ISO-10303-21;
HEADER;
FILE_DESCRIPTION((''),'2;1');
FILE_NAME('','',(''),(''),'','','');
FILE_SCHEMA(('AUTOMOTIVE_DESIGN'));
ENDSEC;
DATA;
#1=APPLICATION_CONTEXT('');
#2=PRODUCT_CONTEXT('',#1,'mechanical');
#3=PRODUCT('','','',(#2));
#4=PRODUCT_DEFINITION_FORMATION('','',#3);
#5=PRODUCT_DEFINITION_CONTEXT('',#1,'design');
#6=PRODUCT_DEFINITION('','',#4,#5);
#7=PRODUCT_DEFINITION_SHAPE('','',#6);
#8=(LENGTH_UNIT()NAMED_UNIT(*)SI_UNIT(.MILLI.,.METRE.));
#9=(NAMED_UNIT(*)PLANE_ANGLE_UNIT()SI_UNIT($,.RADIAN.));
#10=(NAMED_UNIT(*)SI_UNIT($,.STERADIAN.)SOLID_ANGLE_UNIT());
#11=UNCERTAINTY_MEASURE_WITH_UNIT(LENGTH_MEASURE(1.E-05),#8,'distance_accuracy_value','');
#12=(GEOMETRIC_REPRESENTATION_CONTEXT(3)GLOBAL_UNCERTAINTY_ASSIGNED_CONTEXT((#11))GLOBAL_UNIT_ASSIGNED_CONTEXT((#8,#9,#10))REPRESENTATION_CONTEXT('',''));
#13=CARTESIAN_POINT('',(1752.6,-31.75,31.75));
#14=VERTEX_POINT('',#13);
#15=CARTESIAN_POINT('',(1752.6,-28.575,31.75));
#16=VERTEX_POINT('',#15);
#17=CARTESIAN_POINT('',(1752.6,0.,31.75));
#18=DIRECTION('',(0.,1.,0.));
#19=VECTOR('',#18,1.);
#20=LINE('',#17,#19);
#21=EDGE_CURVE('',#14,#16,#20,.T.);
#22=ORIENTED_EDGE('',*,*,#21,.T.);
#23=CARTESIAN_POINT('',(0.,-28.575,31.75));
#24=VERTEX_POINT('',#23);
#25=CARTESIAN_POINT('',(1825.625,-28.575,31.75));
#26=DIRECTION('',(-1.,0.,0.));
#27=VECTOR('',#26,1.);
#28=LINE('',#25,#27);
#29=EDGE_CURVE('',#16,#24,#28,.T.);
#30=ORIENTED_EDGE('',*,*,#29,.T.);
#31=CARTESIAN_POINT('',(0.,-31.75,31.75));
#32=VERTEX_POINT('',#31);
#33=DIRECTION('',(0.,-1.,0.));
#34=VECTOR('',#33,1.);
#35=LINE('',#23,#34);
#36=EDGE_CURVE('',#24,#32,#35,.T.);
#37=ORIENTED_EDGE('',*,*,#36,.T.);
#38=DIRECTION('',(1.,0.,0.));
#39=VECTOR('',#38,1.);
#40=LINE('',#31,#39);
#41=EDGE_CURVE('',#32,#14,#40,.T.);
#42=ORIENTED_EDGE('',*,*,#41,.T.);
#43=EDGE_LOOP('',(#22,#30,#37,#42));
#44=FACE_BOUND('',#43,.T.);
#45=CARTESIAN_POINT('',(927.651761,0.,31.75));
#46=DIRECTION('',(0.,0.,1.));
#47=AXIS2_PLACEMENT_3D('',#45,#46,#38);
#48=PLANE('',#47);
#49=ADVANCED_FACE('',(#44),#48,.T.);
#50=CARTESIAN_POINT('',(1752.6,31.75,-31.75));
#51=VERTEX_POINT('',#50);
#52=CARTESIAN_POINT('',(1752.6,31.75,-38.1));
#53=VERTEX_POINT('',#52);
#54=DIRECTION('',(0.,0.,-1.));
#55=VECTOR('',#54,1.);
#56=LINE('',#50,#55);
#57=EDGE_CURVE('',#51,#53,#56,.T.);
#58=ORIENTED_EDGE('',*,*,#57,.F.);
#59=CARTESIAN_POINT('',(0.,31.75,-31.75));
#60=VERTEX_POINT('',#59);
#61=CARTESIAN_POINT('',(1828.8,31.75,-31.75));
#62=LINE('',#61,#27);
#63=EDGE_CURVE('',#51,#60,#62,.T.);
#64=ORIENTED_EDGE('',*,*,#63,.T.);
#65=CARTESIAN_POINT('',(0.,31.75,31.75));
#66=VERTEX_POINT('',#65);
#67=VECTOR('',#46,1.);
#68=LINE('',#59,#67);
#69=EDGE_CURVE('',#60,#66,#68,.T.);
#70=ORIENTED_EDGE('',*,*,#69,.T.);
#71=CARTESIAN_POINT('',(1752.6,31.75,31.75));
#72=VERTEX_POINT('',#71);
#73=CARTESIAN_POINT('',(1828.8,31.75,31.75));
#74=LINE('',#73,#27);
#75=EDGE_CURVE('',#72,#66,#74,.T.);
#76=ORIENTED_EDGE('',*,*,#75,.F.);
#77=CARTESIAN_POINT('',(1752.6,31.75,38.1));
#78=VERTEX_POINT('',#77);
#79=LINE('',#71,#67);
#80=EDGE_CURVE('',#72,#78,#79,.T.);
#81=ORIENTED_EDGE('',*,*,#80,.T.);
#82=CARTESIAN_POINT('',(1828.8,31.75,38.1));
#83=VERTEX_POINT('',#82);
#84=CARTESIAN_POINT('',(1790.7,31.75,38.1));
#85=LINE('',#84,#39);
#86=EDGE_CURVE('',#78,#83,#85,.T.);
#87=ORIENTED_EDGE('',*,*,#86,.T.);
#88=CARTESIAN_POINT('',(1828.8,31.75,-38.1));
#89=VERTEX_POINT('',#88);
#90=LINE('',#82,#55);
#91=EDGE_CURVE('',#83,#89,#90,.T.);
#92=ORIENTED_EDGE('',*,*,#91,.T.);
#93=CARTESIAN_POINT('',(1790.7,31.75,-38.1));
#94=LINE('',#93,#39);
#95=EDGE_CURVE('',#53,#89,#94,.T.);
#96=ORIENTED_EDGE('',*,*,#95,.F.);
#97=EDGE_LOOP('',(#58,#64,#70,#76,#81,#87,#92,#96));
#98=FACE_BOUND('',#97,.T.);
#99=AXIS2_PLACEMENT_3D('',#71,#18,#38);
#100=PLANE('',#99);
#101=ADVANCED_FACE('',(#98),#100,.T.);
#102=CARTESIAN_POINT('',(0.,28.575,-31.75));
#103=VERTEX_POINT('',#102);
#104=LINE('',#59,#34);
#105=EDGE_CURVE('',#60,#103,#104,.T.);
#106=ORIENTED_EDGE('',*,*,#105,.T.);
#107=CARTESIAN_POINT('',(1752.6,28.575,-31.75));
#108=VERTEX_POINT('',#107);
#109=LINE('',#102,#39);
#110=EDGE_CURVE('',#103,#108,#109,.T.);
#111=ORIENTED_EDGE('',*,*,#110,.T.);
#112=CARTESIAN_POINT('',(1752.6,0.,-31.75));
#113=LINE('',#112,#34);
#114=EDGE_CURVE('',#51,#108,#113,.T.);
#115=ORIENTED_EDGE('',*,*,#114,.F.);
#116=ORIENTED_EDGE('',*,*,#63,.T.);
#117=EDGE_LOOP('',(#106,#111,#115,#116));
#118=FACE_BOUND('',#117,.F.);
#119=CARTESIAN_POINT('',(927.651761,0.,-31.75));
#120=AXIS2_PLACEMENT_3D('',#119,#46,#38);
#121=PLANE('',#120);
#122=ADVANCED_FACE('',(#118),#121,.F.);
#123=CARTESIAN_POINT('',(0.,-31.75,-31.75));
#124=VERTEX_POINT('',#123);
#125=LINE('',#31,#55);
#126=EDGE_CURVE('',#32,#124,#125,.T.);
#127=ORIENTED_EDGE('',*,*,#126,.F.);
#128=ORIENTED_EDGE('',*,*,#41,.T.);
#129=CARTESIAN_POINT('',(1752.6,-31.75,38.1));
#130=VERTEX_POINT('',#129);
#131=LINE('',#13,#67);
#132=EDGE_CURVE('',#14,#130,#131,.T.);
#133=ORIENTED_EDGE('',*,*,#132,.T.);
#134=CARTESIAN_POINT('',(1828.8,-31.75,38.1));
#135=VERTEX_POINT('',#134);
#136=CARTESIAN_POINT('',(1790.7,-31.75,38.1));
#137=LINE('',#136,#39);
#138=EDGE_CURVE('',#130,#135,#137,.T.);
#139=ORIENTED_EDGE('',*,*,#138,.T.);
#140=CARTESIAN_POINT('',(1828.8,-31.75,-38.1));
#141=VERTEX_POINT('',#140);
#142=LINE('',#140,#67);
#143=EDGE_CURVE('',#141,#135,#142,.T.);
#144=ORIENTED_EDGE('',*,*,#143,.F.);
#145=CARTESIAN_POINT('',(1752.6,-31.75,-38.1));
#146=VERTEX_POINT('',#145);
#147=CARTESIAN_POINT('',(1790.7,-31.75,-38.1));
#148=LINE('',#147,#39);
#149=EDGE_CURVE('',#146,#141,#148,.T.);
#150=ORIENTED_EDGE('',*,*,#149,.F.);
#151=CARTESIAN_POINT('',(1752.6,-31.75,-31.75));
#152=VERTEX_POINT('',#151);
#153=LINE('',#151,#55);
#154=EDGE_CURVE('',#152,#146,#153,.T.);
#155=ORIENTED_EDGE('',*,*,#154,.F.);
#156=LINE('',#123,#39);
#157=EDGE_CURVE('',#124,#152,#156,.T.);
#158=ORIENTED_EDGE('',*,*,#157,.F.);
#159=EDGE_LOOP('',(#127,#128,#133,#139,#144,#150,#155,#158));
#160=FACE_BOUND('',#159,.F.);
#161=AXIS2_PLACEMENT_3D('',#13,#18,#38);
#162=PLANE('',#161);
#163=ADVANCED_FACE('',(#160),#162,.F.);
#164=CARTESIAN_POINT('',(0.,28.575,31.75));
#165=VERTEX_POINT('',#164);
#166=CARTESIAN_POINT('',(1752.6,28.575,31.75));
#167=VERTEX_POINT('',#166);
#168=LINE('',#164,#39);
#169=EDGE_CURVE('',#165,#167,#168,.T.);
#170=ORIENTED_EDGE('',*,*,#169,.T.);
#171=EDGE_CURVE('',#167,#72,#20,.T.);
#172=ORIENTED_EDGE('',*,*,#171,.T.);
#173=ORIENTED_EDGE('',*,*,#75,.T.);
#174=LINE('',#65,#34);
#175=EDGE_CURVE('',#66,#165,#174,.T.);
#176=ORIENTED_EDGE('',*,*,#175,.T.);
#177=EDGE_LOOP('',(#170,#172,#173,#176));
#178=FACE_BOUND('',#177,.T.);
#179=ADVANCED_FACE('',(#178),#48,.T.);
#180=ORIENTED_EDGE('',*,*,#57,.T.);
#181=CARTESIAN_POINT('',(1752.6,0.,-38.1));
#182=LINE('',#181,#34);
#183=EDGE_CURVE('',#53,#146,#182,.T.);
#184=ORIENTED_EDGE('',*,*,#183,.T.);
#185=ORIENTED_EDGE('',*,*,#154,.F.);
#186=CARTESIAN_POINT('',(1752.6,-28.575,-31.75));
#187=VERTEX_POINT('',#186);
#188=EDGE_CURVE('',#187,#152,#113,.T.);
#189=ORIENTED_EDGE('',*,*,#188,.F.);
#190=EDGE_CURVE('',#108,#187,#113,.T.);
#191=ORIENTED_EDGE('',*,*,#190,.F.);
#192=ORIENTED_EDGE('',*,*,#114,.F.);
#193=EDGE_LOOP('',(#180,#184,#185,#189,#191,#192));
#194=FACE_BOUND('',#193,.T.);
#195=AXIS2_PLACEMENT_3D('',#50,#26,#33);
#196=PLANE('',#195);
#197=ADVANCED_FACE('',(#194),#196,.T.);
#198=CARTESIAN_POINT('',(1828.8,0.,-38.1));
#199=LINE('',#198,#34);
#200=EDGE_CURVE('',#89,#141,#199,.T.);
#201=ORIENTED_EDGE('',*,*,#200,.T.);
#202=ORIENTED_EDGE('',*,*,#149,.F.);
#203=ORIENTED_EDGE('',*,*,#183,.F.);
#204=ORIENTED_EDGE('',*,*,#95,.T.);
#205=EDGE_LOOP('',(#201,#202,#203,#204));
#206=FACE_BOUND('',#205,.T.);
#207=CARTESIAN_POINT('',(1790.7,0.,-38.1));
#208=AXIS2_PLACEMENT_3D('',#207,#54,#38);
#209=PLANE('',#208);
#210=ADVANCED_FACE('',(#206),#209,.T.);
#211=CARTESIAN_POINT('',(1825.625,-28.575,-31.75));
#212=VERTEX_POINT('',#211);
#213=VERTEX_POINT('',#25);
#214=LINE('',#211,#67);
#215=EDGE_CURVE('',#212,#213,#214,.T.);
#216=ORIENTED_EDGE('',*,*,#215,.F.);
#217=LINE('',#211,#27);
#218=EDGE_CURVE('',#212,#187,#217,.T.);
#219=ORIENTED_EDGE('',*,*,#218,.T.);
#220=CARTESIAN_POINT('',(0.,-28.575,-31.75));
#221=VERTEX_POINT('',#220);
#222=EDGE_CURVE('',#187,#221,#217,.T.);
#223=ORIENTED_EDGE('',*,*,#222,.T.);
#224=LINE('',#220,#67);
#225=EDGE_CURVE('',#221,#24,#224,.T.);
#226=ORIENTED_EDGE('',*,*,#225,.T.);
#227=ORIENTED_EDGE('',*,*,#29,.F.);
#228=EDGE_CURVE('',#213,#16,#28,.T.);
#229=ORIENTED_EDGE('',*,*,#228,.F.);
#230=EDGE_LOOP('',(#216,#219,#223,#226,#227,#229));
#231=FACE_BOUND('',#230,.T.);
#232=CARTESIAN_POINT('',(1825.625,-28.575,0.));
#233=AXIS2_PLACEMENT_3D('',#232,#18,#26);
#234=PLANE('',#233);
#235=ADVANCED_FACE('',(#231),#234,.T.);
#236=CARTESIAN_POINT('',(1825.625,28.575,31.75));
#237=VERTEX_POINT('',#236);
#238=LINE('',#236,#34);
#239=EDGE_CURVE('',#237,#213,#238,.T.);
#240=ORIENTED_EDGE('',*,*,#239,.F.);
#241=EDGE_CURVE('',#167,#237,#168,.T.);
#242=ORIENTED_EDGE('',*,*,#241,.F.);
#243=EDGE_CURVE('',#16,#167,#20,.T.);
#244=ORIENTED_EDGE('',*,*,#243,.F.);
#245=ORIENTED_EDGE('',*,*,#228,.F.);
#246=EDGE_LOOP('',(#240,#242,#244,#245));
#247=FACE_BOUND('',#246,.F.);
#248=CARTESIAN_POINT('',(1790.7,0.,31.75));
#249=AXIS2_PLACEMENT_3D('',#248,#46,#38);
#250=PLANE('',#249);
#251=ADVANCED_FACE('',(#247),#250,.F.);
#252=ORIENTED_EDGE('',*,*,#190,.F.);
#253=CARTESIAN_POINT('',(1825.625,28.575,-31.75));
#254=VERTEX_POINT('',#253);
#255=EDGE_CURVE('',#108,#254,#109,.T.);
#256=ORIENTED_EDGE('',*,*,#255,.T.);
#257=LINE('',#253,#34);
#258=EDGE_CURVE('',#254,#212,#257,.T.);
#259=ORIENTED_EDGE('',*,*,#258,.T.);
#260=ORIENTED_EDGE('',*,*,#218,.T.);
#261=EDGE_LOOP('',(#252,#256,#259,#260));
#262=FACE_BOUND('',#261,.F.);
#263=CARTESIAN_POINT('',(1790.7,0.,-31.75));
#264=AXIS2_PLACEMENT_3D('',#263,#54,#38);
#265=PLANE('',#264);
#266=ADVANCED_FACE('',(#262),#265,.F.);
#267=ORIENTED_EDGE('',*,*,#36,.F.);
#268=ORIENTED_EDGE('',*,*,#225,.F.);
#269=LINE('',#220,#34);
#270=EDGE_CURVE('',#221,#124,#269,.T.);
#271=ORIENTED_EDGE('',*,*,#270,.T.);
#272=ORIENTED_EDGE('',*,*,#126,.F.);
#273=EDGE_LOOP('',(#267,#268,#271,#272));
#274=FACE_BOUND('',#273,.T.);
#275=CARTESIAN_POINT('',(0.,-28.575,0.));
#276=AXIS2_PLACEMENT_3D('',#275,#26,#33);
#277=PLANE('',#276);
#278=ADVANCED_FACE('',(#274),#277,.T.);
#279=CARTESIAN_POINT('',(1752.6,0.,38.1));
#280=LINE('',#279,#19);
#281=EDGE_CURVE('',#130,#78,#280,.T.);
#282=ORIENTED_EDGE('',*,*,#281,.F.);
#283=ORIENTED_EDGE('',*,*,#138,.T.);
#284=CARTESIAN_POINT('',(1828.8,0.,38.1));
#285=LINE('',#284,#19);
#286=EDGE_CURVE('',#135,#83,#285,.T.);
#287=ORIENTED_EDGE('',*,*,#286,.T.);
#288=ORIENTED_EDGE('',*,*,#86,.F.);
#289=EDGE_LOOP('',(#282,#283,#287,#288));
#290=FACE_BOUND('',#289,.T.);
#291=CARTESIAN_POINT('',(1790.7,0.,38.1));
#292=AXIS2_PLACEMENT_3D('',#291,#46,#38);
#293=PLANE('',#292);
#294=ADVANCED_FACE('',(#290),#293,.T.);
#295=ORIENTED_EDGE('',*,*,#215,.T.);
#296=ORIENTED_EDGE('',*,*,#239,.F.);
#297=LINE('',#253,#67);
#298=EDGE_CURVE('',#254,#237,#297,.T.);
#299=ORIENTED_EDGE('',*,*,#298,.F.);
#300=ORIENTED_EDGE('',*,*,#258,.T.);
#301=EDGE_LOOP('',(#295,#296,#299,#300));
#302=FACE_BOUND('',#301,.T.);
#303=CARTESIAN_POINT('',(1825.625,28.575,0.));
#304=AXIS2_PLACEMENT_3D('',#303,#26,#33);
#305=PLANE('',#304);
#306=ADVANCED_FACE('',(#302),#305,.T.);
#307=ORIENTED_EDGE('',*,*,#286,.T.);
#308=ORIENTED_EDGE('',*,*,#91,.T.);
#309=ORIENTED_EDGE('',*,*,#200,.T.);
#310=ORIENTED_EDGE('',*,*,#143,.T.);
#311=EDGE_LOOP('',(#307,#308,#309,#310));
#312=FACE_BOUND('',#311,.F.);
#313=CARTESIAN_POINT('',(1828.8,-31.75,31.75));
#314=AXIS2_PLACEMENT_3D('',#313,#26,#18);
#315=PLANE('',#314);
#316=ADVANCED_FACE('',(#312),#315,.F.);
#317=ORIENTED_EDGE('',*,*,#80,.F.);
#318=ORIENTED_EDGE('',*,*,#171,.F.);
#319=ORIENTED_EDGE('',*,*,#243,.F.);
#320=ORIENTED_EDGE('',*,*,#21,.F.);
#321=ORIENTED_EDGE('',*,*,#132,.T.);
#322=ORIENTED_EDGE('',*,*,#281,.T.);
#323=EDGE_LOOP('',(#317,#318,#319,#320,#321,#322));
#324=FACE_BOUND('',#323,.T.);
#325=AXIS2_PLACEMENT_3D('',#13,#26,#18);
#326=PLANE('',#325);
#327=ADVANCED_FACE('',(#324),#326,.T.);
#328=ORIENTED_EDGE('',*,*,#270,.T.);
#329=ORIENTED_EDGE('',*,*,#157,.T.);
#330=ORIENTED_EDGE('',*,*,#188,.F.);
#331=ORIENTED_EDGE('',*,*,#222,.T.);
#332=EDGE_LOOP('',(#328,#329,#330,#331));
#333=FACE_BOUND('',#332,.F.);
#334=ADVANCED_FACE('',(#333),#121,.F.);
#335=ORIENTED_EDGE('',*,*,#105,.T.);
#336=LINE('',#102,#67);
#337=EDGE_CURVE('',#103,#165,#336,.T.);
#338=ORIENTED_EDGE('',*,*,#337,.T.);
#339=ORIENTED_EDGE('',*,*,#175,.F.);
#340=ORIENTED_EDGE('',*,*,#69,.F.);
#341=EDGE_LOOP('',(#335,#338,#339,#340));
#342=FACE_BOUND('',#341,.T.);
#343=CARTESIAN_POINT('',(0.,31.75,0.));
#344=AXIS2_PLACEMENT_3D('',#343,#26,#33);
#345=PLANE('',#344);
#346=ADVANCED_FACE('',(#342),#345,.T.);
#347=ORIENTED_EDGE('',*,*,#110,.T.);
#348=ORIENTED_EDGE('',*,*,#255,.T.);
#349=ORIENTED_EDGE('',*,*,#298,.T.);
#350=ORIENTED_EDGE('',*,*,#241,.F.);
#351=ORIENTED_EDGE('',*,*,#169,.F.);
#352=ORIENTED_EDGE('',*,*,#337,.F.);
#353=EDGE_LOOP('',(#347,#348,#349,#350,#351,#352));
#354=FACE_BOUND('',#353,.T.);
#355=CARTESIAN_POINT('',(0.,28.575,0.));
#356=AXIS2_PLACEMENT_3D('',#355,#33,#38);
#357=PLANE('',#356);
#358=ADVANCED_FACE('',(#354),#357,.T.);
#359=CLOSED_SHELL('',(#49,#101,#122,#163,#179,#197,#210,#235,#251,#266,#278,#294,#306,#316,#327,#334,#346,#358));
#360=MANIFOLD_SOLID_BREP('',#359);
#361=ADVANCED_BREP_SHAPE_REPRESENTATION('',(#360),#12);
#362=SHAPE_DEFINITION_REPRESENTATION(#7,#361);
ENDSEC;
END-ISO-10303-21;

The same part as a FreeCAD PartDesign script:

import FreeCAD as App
import Part
import Sketcher

V = App.Vector
Q = App.Units.Quantity

doc = App.newDocument("Part")
body = doc.addObject("PartDesign::Body", "Body")

# Sketch on XY plane
sketch1 = doc.addObject("Sketcher::SketchObject", "Sketch")
body.addObject(sketch1)
sketch1.AttachmentSupport = (doc.XY_Plane, [""])
sketch1.MapMode = "FlatFace"
sketch1.addGeometry([
    Part.LineSegment(V(1828.8, 31.75, 0), V(0, 31.75, 0)),  # 0
    Part.LineSegment(V(0, 31.75, 0), V(0, 28.575, 0)),  # 1
    Part.LineSegment(V(0, 28.575, 0), V(1825.625, 28.575, 0)),  # 2
    Part.LineSegment(V(1825.625, 28.575, 0), V(1825.625, -28.575, 0)),  # 3
    Part.LineSegment(V(1825.625, -28.575, 0), V(0, -28.575, 0)),  # 4
    Part.LineSegment(V(0, -28.575, 0), V(0, -31.75, 0)),  # 5
    Part.LineSegment(V(0, -31.75, 0), V(1828.8, -31.75, 0)),  # 6
    Part.LineSegment(V(1828.8, -31.75, 0), V(1828.8, 31.75, 0)),  # 7
], False)
sketch1.addConstraint([
    Sketcher.Constraint("Coincident", 0, 2, 1, 1),
    Sketcher.Constraint("Coincident", 1, 2, 2, 1),
    Sketcher.Constraint("Coincident", 2, 2, 3, 1),
    Sketcher.Constraint("Coincident", 3, 2, 4, 1),
    Sketcher.Constraint("Coincident", 4, 2, 5, 1),
    Sketcher.Constraint("Coincident", 5, 2, 6, 1),
    Sketcher.Constraint("Coincident", 6, 2, 7, 1),
    Sketcher.Constraint("Coincident", 7, 2, 0, 1),
    Sketcher.Constraint("Horizontal", 0),
    Sketcher.Constraint("Vertical", 1),
    Sketcher.Constraint("Horizontal", 2),
    Sketcher.Constraint("Vertical", 3),
    Sketcher.Constraint("Horizontal", 4),
    Sketcher.Constraint("Vertical", 5),
    Sketcher.Constraint("Horizontal", 6),
    Sketcher.Constraint("Vertical", 7),
    Sketcher.Constraint("Symmetric", 1, 2, 4, 2, -1, 1),
    Sketcher.Constraint("Symmetric", 0, 2, 5, 2, -1),
    Sketcher.Constraint("DistanceX", 0, 2, 0, 1, Q("72 in")),
    Sketcher.Constraint("DistanceY", 7, 1, 7, 2, Q("2.5 in")),
    Sketcher.Constraint("DistanceY", 3, 2, 3, 1, Q("2.25 in")),
    Sketcher.Constraint("DistanceX", 2, 1, 2, 2, Q("71.875 in")),
])
pad1 = doc.addObject("PartDesign::Pad", "Pad")
body.addObject(pad1)
pad1.Profile = sketch1
pad1.Length = Q("2.5 in")
pad1.Midplane = True

# Sketch on XY plane
sketch2 = doc.addObject("Sketcher::SketchObject", "Sketch001")
body.addObject(sketch2)
sketch2.AttachmentSupport = (doc.XY_Plane, [""])
sketch2.MapMode = "FlatFace"
sketch2.AttachmentOffset = App.Placement(V(0, 0, -1.25 * 25.4), App.Rotation())
sketch2.addGeometry([
    Part.LineSegment(V(1752.6, -31.75, 0), V(1752.6, 31.75, 0)),
    Part.LineSegment(V(1752.6, 31.75, 0), V(1828.8, 31.75, 0)),
    Part.LineSegment(V(1828.8, 31.75, 0), V(1828.8, -31.75, 0)),
    Part.LineSegment(V(1828.8, -31.75, 0), V(1752.6, -31.75, 0)),
], False)
sketch2.addConstraint([
    Sketcher.Constraint("Coincident", 0, 2, 1, 1),
    Sketcher.Constraint("Coincident", 1, 2, 2, 1),
    Sketcher.Constraint("Coincident", 2, 2, 3, 1),
    Sketcher.Constraint("Coincident", 3, 2, 0, 1),
    Sketcher.Constraint("Vertical", 0),
    Sketcher.Constraint("Horizontal", 1),
    Sketcher.Constraint("Vertical", 2),
    Sketcher.Constraint("Horizontal", 3),
    Sketcher.Constraint("DistanceX", 1, 1, 1, 2, Q("3 in")),
    Sketcher.Constraint("DistanceY", 0, 1, 0, 2, Q("2.5 in")),
    Sketcher.Constraint("DistanceX", -1, 1, 0, 2, Q("69 in")),
    Sketcher.Constraint("DistanceY", -1, 1, 0, 2, Q("1.25 in")),
])
pad2 = doc.addObject("PartDesign::Pad", "Pad001")
body.addObject(pad2)
pad2.Profile = sketch2
pad2.Length = Q("0.25 in")
pad2.Reversed = True

# Sketch on XY plane
sketch3 = doc.addObject("Sketcher::SketchObject", "Sketch002")
body.addObject(sketch3)
sketch3.AttachmentSupport = (doc.XY_Plane, [""])
sketch3.MapMode = "FlatFace"
sketch3.AttachmentOffset = App.Placement(V(0, 0, 1.25 * 25.4), App.Rotation())
sketch3.addGeometry([
    Part.LineSegment(V(1752.6, 31.75, 0), V(1752.6, -31.75, 0)),
    Part.LineSegment(V(1752.6, -31.75, 0), V(1828.8, -31.75, 0)),
    Part.LineSegment(V(1828.8, -31.75, 0), V(1828.8, 31.75, 0)),
    Part.LineSegment(V(1828.8, 31.75, 0), V(1752.6, 31.75, 0)),
], False)
sketch3.addConstraint([
    Sketcher.Constraint("Coincident", 0, 2, 1, 1),
    Sketcher.Constraint("Coincident", 1, 2, 2, 1),
    Sketcher.Constraint("Coincident", 2, 2, 3, 1),
    Sketcher.Constraint("Coincident", 3, 2, 0, 1),
    Sketcher.Constraint("Vertical", 0),
    Sketcher.Constraint("Horizontal", 1),
    Sketcher.Constraint("Vertical", 2),
    Sketcher.Constraint("Horizontal", 3),
    Sketcher.Constraint("DistanceX", 1, 1, 1, 2, Q("3 in")),
    Sketcher.Constraint("DistanceY", 0, 2, 0, 1, Q("2.5 in")),
    Sketcher.Constraint("DistanceX", -1, 1, 0, 2, Q("69 in")),
    Sketcher.Constraint("DistanceY", 0, 2, -1, 1, Q("1.25 in")),
])
pad3 = doc.addObject("PartDesign::Pad", "Pad002")
body.addObject(pad3)
pad3.Profile = sketch3
pad3.Length = Q("0.25 in")

doc.recompute()
